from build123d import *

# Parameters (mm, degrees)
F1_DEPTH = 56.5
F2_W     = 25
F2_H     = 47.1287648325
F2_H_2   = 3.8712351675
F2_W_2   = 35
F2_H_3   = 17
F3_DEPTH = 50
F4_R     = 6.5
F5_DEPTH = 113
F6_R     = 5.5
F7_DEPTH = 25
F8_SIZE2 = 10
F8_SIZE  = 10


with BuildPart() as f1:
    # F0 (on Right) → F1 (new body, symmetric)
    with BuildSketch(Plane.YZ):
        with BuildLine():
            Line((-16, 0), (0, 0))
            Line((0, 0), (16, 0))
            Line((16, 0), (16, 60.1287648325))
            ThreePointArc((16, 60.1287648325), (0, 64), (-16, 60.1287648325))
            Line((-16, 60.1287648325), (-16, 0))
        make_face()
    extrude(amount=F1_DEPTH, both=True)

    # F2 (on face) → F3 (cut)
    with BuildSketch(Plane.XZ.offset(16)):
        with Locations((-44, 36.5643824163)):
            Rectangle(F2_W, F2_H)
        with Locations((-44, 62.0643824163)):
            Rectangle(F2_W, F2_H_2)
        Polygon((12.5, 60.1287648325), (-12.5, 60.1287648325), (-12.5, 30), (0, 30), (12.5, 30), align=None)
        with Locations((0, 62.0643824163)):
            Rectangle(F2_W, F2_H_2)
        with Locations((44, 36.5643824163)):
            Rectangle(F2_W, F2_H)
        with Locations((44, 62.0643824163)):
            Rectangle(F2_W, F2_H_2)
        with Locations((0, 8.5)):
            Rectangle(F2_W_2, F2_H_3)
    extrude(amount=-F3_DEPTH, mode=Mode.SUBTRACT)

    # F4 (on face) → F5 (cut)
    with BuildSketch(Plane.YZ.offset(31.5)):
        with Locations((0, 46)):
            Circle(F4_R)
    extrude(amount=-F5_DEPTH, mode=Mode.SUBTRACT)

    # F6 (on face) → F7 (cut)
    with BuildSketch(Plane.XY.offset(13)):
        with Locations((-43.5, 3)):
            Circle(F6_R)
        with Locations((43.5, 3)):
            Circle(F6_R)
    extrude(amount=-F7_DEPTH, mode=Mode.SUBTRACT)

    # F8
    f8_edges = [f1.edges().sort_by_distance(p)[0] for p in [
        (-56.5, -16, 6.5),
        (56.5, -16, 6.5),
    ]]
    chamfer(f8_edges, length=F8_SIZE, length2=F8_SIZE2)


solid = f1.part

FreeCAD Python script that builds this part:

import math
import FreeCAD as App
import Part
import Sketcher

V = App.Vector


def edges_at(feature, points):
    """Names of the edges that pass closest to the given points."""
    edges = feature.Shape.Edges
    near = lambda p: min(range(len(edges)), key=lambda i: edges[i].distToShape(Part.Vertex(*p))[0])
    return sorted({f"Edge{near(p) + 1}" for p in points})


def add_polygon(sketch, points):
    """Adds a closed chain of lines whose ends are joined by coincident constraints."""
    first, n = sketch.GeometryCount, len(points)
    for a, b in zip(points, points[1:] + points[:1]):
        sketch.addGeometry(Part.LineSegment(App.Vector(*a, 0), App.Vector(*b, 0)), False)
    for i in range(n):
        sketch.addConstraint(Sketcher.Constraint("Coincident", first + i, 2, first + (i + 1) % n, 1))

doc = App.newDocument("Part")
body = doc.addObject("PartDesign::Body", "Body")

# Sketch on YZ plane
sketch1 = body.newObject("Sketcher::SketchObject", "Sketch")
sketch1.AttachmentSupport = (doc.getObject("YZ_Plane"), [""])
sketch1.MapMode = "FlatFace"
sketch1.addGeometry(Part.LineSegment(V(-16, 0, 0), V(16, 0, 0)), False)
sketch1.addGeometry(Part.LineSegment(V(16, 0, 0), V(16, 60, 0)), False)
sketch1.addGeometry(Part.ArcOfCircle(Part.Circle(V(0, 29, 0), V(0, 0, 1), 35), math.radians(63), math.radians(117)), False)
sketch1.addGeometry(Part.LineSegment(V(-16, 60, 0), V(-16, 0, 0)), False)
sketch1.addConstraint(Sketcher.Constraint("Coincident", 0, 2, 1, 1))
sketch1.addConstraint(Sketcher.Constraint("Coincident", 1, 2, 2, 1))
sketch1.addConstraint(Sketcher.Constraint("Coincident", 2, 2, 3, 1))
sketch1.addConstraint(Sketcher.Constraint("Coincident", 3, 2, 0, 1))
sketch1.addConstraint(Sketcher.Constraint("Horizontal", 0))
sketch1.addConstraint(Sketcher.Constraint("Vertical", 1))
sketch1.addConstraint(Sketcher.Constraint("Vertical", 3))
sketch1.addConstraint(Sketcher.Constraint("Symmetric", 0, 2, 3, 2, -1, 1))
sketch1.addConstraint(Sketcher.Constraint("PointOnObject", 2, 3, -2))
sketch1.addConstraint(Sketcher.Constraint("Radius", 2, 35.0))
sketch1.addConstraint(Sketcher.Constraint("DistanceX", 0, 1, 0, 2, 32.0))
sketch1.addConstraint(Sketcher.Constraint("DistanceY", -1, 1, 2, 3, 29.0))
pad1 = body.newObject("PartDesign::Pad", "Pad")
pad1.Profile = sketch1
pad1.Length = 113
pad1.Midplane = True

# Sketch on XZ plane
sketch2 = body.newObject("Sketcher::SketchObject", "Sketch001")
sketch2.AttachmentSupport = (doc.getObject("XZ_Plane"), [""])
sketch2.MapMode = "FlatFace"
sketch2.AttachmentOffset = App.Placement(V(0, 0, 16), App.Rotation())
add_polygon(sketch2, [(-56, 13), (-32, 13), (-32, 64), (-56, 64)])  # lines 0-3
add_polygon(sketch2, [(-12, 30), (12, 30), (12, 64), (-12, 64)])  # lines 4-7
add_polygon(sketch2, [(32, 13), (56, 13), (56, 64), (32, 64)])  # lines 8-11
add_polygon(sketch2, [(-18, 17), (-18, 0), (18, 0), (18, 17)])  # lines 12-15
sketch2.addConstraint(Sketcher.Constraint("Horizontal", 0))
sketch2.addConstraint(Sketcher.Constraint("Vertical", 1))
sketch2.addConstraint(Sketcher.Constraint("Horizontal", 2))
sketch2.addConstraint(Sketcher.Constraint("Vertical", 3))
sketch2.addConstraint(Sketcher.Constraint("Horizontal", 4))
sketch2.addConstraint(Sketcher.Constraint("Vertical", 5))
sketch2.addConstraint(Sketcher.Constraint("Horizontal", 6))
sketch2.addConstraint(Sketcher.Constraint("Vertical", 7))
sketch2.addConstraint(Sketcher.Constraint("Horizontal", 8))
sketch2.addConstraint(Sketcher.Constraint("Vertical", 9))
sketch2.addConstraint(Sketcher.Constraint("Horizontal", 10))
sketch2.addConstraint(Sketcher.Constraint("Vertical", 11))
sketch2.addConstraint(Sketcher.Constraint("Vertical", 12))
sketch2.addConstraint(Sketcher.Constraint("Horizontal", 13))
sketch2.addConstraint(Sketcher.Constraint("Vertical", 14))
sketch2.addConstraint(Sketcher.Constraint("Horizontal", 15))
sketch2.addConstraint(Sketcher.Constraint("Symmetric", 12, 2, 13, 2, -1, 1))
sketch2.addConstraint(Sketcher.Constraint("Symmetric", 3, 2, 8, 2, -2))
sketch2.addConstraint(Sketcher.Constraint("Symmetric", 1, 2, 10, 2, -2))
sketch2.addConstraint(Sketcher.Constraint("Horizontal", 2, 2, 5, 2))
sketch2.addConstraint(Sketcher.Constraint("Equal", 2, 4))
sketch2.addConstraint(Sketcher.Constraint("DistanceX", 0, 1, 0, 2, 25.0))
sketch2.addConstraint(Sketcher.Constraint("DistanceX", 13, 1, 13, 2, 35.0))
sketch2.addConstraint(Sketcher.Constraint("DistanceY", 1, 1, 1, 2, 51.0))
sketch2.addConstraint(Sketcher.Constraint("DistanceY", 5, 1, 5, 2, 34.0))
sketch2.addConstraint(Sketcher.Constraint("DistanceY", 12, 2, 12, 1, 17.0))
sketch2.addConstraint(Sketcher.Constraint("DistanceY", -1, 1, 0, 2, 13.0))
sketch2.addConstraint(Sketcher.Constraint("DistanceX", 0, 2, 4, 2, 44.0))
sketch2.addConstraint(Sketcher.Constraint("DistanceX", 4, 2, 8, 2, 44.0))
pocket1 = body.newObject("PartDesign::Pocket", "Pocket")
pocket1.Profile = sketch2
pocket1.Length = 50

# Sketch on YZ plane
sketch3 = body.newObject("Sketcher::SketchObject", "Sketch002")
sketch3.AttachmentSupport = (doc.getObject("YZ_Plane"), [""])
sketch3.MapMode = "FlatFace"
sketch3.AttachmentOffset = App.Placement(V(0, 0, 31.5), App.Rotation())
sketch3.addGeometry(Part.Circle(V(0, 46, 0), V(0, 0, 1), 6), False)
sketch3.addConstraint(Sketcher.Constraint("PointOnObject", 0, 3, -2))
sketch3.addConstraint(Sketcher.Constraint("Diameter", 0, 13.0))
sketch3.addConstraint(Sketcher.Constraint("DistanceY", -1, 1, 0, 3, 46.0))
pocket2 = body.newObject("PartDesign::Pocket", "Pocket001")
pocket2.Profile = sketch3
pocket2.Length = 113

# Sketch on XY plane
sketch4 = body.newObject("Sketcher::SketchObject", "Sketch003")
sketch4.AttachmentSupport = (doc.getObject("XY_Plane"), [""])
sketch4.MapMode = "FlatFace"
sketch4.AttachmentOffset = App.Placement(V(0, 0, 13), App.Rotation())
sketch4.addGeometry(Part.Circle(V(-44, 3, 0), V(0, 0, 1), 6), False)
sketch4.addGeometry(Part.Circle(V(44, 3, 0), V(0, 0, 1), 6), False)
sketch4.addConstraint(Sketcher.Constraint("Equal", 0, 1))
sketch4.addConstraint(Sketcher.Constraint("Symmetric", 0, 3, 1, 3, -2))
sketch4.addConstraint(Sketcher.Constraint("Diameter", 0, 11.0))
sketch4.addConstraint(Sketcher.Constraint("DistanceY", -1, 1, 0, 3, 3.0))
sketch4.addConstraint(Sketcher.Constraint("DistanceX", 0, 3, 1, 3, 87.0))
pocket3 = body.newObject("PartDesign::Pocket", "Pocket002")
pocket3.Profile = sketch4
pocket3.Length = 25
doc.recompute()

chamfer = body.newObject("PartDesign::Chamfer", "Chamfer")
chamfer.Base = (pocket3, edges_at(pocket3, [(-56.5, -16, 6.5), (56.5, -16, 6.5)]))
chamfer.ChamferType = "Two distances"
chamfer.Size = 10
chamfer.Size2 = 10

doc.recompute()
